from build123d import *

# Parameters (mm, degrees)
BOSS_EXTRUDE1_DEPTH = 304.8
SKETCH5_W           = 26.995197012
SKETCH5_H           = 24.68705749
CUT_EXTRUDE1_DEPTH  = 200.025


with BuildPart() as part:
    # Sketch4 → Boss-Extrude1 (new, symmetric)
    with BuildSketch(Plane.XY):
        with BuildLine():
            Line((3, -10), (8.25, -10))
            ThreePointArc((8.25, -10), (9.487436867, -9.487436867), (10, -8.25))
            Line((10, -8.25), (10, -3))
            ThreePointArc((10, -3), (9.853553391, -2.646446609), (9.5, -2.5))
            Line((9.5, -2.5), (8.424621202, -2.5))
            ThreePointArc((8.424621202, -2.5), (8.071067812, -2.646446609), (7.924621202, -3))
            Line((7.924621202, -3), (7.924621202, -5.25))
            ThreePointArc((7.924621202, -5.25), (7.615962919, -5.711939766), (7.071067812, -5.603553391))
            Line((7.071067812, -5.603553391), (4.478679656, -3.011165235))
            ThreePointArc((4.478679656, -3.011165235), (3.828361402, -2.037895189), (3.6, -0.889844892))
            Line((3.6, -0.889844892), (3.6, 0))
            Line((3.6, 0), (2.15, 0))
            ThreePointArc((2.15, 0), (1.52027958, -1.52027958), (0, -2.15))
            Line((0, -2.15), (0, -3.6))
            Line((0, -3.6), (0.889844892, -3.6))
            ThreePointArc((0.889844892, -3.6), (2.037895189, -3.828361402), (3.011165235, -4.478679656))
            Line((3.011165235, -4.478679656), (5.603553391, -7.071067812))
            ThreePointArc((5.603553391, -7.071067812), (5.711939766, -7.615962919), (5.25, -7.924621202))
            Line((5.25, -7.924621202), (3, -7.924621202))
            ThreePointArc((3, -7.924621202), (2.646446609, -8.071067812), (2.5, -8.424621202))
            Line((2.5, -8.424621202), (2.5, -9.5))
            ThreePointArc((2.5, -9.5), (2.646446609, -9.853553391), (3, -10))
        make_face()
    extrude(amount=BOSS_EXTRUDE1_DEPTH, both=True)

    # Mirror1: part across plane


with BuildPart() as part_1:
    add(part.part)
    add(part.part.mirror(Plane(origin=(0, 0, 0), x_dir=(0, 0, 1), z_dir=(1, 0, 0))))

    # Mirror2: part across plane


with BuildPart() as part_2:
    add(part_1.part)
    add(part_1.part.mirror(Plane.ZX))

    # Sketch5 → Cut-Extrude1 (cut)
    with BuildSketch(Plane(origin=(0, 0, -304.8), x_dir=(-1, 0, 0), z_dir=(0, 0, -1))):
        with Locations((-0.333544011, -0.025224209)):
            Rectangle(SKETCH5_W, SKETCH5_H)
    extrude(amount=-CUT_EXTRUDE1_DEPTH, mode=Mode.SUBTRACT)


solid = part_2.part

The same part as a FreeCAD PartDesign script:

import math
import FreeCAD as App
import Part
import Sketcher

V = App.Vector
Q = App.Units.Quantity

doc = App.newDocument("Part")
body = doc.addObject("PartDesign::Body", "Body")

# Sketch on XY plane
sketch1 = body.newObject("Sketcher::SketchObject", "Sketch")
sketch1.AttachmentSupport = (doc.getObject("XY_Plane"), [""])
sketch1.MapMode = "FlatFace"
sketch1.addGeometry(Part.LineSegment(V(3, -10, 0), V(8.25, -10, 0)), False)
sketch1.addGeometry(Part.ArcOfCircle(Part.Circle(V(8.25, -8.25, 0), V(0, 0, 1), 1.75), math.radians(-90), math.radians(0)), False)
sketch1.addGeometry(Part.LineSegment(V(10, -8.25, 0), V(10, -3, 0)), False)
sketch1.addGeometry(Part.ArcOfCircle(Part.Circle(V(9.5, -3, 0), V(0, 0, 1), 0.5), math.radians(0), math.radians(90)), False)
sketch1.addGeometry(Part.LineSegment(V(9.5, -2.5, 0), V(8.42, -2.5, 0)), False)
sketch1.addGeometry(Part.ArcOfCircle(Part.Circle(V(8.42, -3, 0), V(0, 0, 1), 0.5), math.radians(90), math.radians(180)), False)
sketch1.addGeometry(Part.LineSegment(V(7.92, -3, 0), V(7.92, -5.25, 0)), False)
sketch1.addGeometry(Part.ArcOfCircle(Part.Circle(V(7.42, -5.25, 0), V(0, 0, 1), 0.5), math.radians(-135), math.radians(0)), False)
sketch1.addGeometry(Part.LineSegment(V(7.07, -5.6, 0), V(4.48, -3.01, 0)), False)
sketch1.addGeometry(Part.ArcOfCircle(Part.Circle(V(6.6, -0.89, 0), V(0, 0, 1), 3), math.radians(180), math.radians(225)), False)
sketch1.addGeometry(Part.LineSegment(V(3.6, -0.89, 0), V(3.6, 0, 0)), False)
sketch1.addGeometry(Part.LineSegment(V(3.6, 0, 0), V(2.15, 0, 0)), False)
sketch1.addGeometry(Part.ArcOfCircle(Part.Circle(V(0, 0, 0), V(0, 0, 1), 2.15), math.radians(-90), math.radians(0)), False)
sketch1.addGeometry(Part.LineSegment(V(0, -2.15, 0), V(0, -3.6, 0)), False)
sketch1.addGeometry(Part.LineSegment(V(0, -3.6, 0), V(0.89, -3.6, 0)), False)
sketch1.addGeometry(Part.ArcOfCircle(Part.Circle(V(0.89, -6.6, 0), V(0, 0, 1), 3), math.radians(45), math.radians(90)), False)
sketch1.addGeometry(Part.LineSegment(V(3.01, -4.48, 0), V(5.6, -7.07, 0)), False)
sketch1.addGeometry(Part.ArcOfCircle(Part.Circle(V(5.25, -7.42, 0), V(0, 0, 1), 0.5), math.radians(-90), math.radians(45)), False)
sketch1.addGeometry(Part.LineSegment(V(5.25, -7.92, 0), V(3, -7.92, 0)), False)
sketch1.addGeometry(Part.ArcOfCircle(Part.Circle(V(3, -8.42, 0), V(0, 0, 1), 0.5), math.radians(90), math.radians(180)), False)
sketch1.addGeometry(Part.LineSegment(V(2.5, -8.42, 0), V(2.5, -9.5, 0)), False)
sketch1.addGeometry(Part.ArcOfCircle(Part.Circle(V(3, -9.5, 0), V(0, 0, 1), 0.5), math.radians(180), math.radians(270)), False)
sketch1.addConstraint(Sketcher.Constraint("Tangent", 0, 2, 1, 1))
sketch1.addConstraint(Sketcher.Constraint("Tangent", 1, 2, 2, 1))
sketch1.addConstraint(Sketcher.Constraint("Tangent", 2, 2, 3, 1))
sketch1.addConstraint(Sketcher.Constraint("Tangent", 3, 2, 4, 1))
sketch1.addConstraint(Sketcher.Constraint("Tangent", 4, 2, 5, 1))
sketch1.addConstraint(Sketcher.Constraint("Tangent", 5, 2, 6, 1))
sketch1.addConstraint(Sketcher.Constraint("Tangent", 6, 2, 7, 2))
sketch1.addConstraint(Sketcher.Constraint("Tangent", 7, 1, 8, 1))
sketch1.addConstraint(Sketcher.Constraint("Tangent", 8, 2, 9, 2))
sketch1.addConstraint(Sketcher.Constraint("Tangent", 9, 1, 10, 1))
sketch1.addConstraint(Sketcher.Constraint("Coincident", 10, 2, 11, 1))
sketch1.addConstraint(Sketcher.Constraint("Coincident", 11, 2, 12, 2))
sketch1.addConstraint(Sketcher.Constraint("Coincident", 12, 1, 13, 1))
sketch1.addConstraint(Sketcher.Constraint("Coincident", 13, 2, 14, 1))
sketch1.addConstraint(Sketcher.Constraint("Tangent", 14, 2, 15, 2))
sketch1.addConstraint(Sketcher.Constraint("Tangent", 15, 1, 16, 1))
sketch1.addConstraint(Sketcher.Constraint("Tangent", 16, 2, 17, 2))
sketch1.addConstraint(Sketcher.Constraint("Tangent", 17, 1, 18, 1))
sketch1.addConstraint(Sketcher.Constraint("Tangent", 18, 2, 19, 1))
sketch1.addConstraint(Sketcher.Constraint("Tangent", 19, 2, 20, 1))
sketch1.addConstraint(Sketcher.Constraint("Tangent", 20, 2, 21, 1))
sketch1.addConstraint(Sketcher.Constraint("Tangent", 21, 2, 0, 1))
sketch1.addConstraint(Sketcher.Constraint("Horizontal", 0))
sketch1.addConstraint(Sketcher.Constraint("Vertical", 2))
sketch1.addConstraint(Sketcher.Constraint("Horizontal", 4))
sketch1.addConstraint(Sketcher.Constraint("Vertical", 6))
sketch1.addConstraint(Sketcher.Constraint("Vertical", 10))
sketch1.addConstraint(Sketcher.Constraint("Horizontal", 11))
sketch1.addConstraint(Sketcher.Constraint("Vertical", 13))
sketch1.addConstraint(Sketcher.Constraint("Horizontal", 14))
sketch1.addConstraint(Sketcher.Constraint("Horizontal", 18))
sketch1.addConstraint(Sketcher.Constraint("Vertical", 20))
sketch1.addConstraint(Sketcher.Constraint("Coincident", 12, 3, -1, 1))
sketch1.addConstraint(Sketcher.Constraint("Equal", 3, 5))
sketch1.addConstraint(Sketcher.Constraint("Equal", 5, 7))
sketch1.addConstraint(Sketcher.Constraint("Equal", 9, 15))
sketch1.addConstraint(Sketcher.Constraint("Equal", 7, 17))
sketch1.addConstraint(Sketcher.Constraint("Equal", 17, 19))
sketch1.addConstraint(Sketcher.Constraint("Equal", 19, 21))
sketch1.addConstraint(Sketcher.Constraint("PointOnObject", 10, 2, -1))
sketch1.addConstraint(Sketcher.Constraint("PointOnObject", 12, 1, -2))
sketch1.addConstraint(Sketcher.Constraint("Parallel", 8, 16))
sketch1.addConstraint(Sketcher.Constraint("Equal", 0, 2))
sketch1.addConstraint(Sketcher.Constraint("Equal", 18, 6))
sketch1.addConstraint(Sketcher.Constraint("Equal", 14, 10))
sketch1.addConstraint(Sketcher.Constraint("Equal", 11, 13))
sketch1.addConstraint(Sketcher.Constraint("Equal", 4, 20))
sketch1.addConstraint(Sketcher.Constraint("Equal", 8, 16))
sketch1.addConstraint(Sketcher.Constraint("Radius", 9, Q("3 mm")))
sketch1.addConstraint(Sketcher.Constraint("Radius", 3, Q("0.5 mm")))
sketch1.addConstraint(Sketcher.Constraint("Radius", 1, Q("1.75 mm")))
sketch1.addConstraint(Sketcher.Constraint("Radius", 12, Q("2.15 mm")))
sketch1.addConstraint(Sketcher.Constraint("DistanceY", 3, 3, -1, 1, Q("3 mm")))
sketch1.addConstraint(Sketcher.Constraint("DistanceY", 0, 2, -1, 1, Q("10 mm")))
sketch1.addConstraint(Sketcher.Constraint("DistanceY", 1, 3, 7, 3, Q("3 mm")))
sketch1.addConstraint(Sketcher.Constraint("DistanceX", 11, 2, 11, 1, Q("1.45 mm")))
sketch1.addConstraint(Sketcher.Constraint("DistanceX", 4, 2, 4, 1, Q("1.075379 mm")))
pad1 = body.newObject("PartDesign::Pad", "Pad")
pad1.Profile = sketch1
pad1.Length = 609.6
pad1.Midplane = True
body2 = doc.addObject("PartDesign::Body", "Body001")
doc.recompute()

body2.BaseFeature = body
doc.recompute()

mirroring = doc.addObject("Part::Mirroring", "Mirroring")
mirroring.Source = body
mirroring.Base = V(0, 0, 0)
mirroring.Normal = V(1, 0, 0)
body3 = doc.addObject("PartDesign::Body", "Body002")
body3.BaseFeature = mirroring
boolean = body2.newObject("PartDesign::Boolean", "Boolean")
boolean.Type = "Fuse"
boolean.addObjects([body3])
doc.recompute()
body4 = doc.addObject("PartDesign::Body", "Body003")
doc.recompute()

body4.BaseFeature = body2
doc.recompute()

mirroring2 = doc.addObject("Part::Mirroring", "Mirroring001")
mirroring2.Source = body2
mirroring2.Base = V(0, 0, 0)
mirroring2.Normal = V(0, 1, 0)
body5 = doc.addObject("PartDesign::Body", "Body004")
body5.BaseFeature = mirroring2
boolean2 = body4.newObject("PartDesign::Boolean", "Boolean001")
boolean2.Type = "Fuse"
boolean2.addObjects([body5])
doc.recompute()

# Sketch on XY plane
sketch2 = body4.newObject("Sketcher::SketchObject", "Sketch001")
sketch2.AttachmentSupport = (doc.getObject("XY_Plane003"), [""])
sketch2.MapMode = "FlatFace"
sketch2.AttachmentOffset = App.Placement(V(0, 0, -304.8), App.Rotation())
sketch2.addGeometry(Part.LineSegment(V(14, 12, 0), V(14, -12, 0)), False)
sketch2.addGeometry(Part.LineSegment(V(14, -12, 0), V(-13, -12, 0)), False)
sketch2.addGeometry(Part.LineSegment(V(-13, -12, 0), V(-13, 12, 0)), False)
sketch2.addGeometry(Part.LineSegment(V(-13, 12, 0), V(14, 12, 0)), False)
sketch2.addConstraint(Sketcher.Constraint("Coincident", 0, 2, 1, 1))
sketch2.addConstraint(Sketcher.Constraint("Coincident", 1, 2, 2, 1))
sketch2.addConstraint(Sketcher.Constraint("Coincident", 2, 2, 3, 1))
sketch2.addConstraint(Sketcher.Constraint("Coincident", 3, 2, 0, 1))
sketch2.addConstraint(Sketcher.Constraint("Vertical", 0))
sketch2.addConstraint(Sketcher.Constraint("Horizontal", 1))
sketch2.addConstraint(Sketcher.Constraint("Vertical", 2))
sketch2.addConstraint(Sketcher.Constraint("Horizontal", 3))
sketch2.addConstraint(Sketcher.Constraint("DistanceX", 1, 2, 1, 1, Q("26.995197 mm")))
sketch2.addConstraint(Sketcher.Constraint("DistanceY", 0, 2, 0, 1, Q("24.687057 mm")))
sketch2.addConstraint(Sketcher.Constraint("DistanceX", -1, 1, 0, 2, Q("13.831143 mm")))
sketch2.addConstraint(Sketcher.Constraint("DistanceY", 0, 2, -1, 1, Q("12.368753 mm")))
pocket1 = body4.newObject("PartDesign::Pocket", "Pocket")
pocket1.Profile = sketch2
pocket1.Length = 200.025
pocket1.Reversed = True
mirroring.Visibility = False
mirroring2.Visibility = False

doc.recompute()
